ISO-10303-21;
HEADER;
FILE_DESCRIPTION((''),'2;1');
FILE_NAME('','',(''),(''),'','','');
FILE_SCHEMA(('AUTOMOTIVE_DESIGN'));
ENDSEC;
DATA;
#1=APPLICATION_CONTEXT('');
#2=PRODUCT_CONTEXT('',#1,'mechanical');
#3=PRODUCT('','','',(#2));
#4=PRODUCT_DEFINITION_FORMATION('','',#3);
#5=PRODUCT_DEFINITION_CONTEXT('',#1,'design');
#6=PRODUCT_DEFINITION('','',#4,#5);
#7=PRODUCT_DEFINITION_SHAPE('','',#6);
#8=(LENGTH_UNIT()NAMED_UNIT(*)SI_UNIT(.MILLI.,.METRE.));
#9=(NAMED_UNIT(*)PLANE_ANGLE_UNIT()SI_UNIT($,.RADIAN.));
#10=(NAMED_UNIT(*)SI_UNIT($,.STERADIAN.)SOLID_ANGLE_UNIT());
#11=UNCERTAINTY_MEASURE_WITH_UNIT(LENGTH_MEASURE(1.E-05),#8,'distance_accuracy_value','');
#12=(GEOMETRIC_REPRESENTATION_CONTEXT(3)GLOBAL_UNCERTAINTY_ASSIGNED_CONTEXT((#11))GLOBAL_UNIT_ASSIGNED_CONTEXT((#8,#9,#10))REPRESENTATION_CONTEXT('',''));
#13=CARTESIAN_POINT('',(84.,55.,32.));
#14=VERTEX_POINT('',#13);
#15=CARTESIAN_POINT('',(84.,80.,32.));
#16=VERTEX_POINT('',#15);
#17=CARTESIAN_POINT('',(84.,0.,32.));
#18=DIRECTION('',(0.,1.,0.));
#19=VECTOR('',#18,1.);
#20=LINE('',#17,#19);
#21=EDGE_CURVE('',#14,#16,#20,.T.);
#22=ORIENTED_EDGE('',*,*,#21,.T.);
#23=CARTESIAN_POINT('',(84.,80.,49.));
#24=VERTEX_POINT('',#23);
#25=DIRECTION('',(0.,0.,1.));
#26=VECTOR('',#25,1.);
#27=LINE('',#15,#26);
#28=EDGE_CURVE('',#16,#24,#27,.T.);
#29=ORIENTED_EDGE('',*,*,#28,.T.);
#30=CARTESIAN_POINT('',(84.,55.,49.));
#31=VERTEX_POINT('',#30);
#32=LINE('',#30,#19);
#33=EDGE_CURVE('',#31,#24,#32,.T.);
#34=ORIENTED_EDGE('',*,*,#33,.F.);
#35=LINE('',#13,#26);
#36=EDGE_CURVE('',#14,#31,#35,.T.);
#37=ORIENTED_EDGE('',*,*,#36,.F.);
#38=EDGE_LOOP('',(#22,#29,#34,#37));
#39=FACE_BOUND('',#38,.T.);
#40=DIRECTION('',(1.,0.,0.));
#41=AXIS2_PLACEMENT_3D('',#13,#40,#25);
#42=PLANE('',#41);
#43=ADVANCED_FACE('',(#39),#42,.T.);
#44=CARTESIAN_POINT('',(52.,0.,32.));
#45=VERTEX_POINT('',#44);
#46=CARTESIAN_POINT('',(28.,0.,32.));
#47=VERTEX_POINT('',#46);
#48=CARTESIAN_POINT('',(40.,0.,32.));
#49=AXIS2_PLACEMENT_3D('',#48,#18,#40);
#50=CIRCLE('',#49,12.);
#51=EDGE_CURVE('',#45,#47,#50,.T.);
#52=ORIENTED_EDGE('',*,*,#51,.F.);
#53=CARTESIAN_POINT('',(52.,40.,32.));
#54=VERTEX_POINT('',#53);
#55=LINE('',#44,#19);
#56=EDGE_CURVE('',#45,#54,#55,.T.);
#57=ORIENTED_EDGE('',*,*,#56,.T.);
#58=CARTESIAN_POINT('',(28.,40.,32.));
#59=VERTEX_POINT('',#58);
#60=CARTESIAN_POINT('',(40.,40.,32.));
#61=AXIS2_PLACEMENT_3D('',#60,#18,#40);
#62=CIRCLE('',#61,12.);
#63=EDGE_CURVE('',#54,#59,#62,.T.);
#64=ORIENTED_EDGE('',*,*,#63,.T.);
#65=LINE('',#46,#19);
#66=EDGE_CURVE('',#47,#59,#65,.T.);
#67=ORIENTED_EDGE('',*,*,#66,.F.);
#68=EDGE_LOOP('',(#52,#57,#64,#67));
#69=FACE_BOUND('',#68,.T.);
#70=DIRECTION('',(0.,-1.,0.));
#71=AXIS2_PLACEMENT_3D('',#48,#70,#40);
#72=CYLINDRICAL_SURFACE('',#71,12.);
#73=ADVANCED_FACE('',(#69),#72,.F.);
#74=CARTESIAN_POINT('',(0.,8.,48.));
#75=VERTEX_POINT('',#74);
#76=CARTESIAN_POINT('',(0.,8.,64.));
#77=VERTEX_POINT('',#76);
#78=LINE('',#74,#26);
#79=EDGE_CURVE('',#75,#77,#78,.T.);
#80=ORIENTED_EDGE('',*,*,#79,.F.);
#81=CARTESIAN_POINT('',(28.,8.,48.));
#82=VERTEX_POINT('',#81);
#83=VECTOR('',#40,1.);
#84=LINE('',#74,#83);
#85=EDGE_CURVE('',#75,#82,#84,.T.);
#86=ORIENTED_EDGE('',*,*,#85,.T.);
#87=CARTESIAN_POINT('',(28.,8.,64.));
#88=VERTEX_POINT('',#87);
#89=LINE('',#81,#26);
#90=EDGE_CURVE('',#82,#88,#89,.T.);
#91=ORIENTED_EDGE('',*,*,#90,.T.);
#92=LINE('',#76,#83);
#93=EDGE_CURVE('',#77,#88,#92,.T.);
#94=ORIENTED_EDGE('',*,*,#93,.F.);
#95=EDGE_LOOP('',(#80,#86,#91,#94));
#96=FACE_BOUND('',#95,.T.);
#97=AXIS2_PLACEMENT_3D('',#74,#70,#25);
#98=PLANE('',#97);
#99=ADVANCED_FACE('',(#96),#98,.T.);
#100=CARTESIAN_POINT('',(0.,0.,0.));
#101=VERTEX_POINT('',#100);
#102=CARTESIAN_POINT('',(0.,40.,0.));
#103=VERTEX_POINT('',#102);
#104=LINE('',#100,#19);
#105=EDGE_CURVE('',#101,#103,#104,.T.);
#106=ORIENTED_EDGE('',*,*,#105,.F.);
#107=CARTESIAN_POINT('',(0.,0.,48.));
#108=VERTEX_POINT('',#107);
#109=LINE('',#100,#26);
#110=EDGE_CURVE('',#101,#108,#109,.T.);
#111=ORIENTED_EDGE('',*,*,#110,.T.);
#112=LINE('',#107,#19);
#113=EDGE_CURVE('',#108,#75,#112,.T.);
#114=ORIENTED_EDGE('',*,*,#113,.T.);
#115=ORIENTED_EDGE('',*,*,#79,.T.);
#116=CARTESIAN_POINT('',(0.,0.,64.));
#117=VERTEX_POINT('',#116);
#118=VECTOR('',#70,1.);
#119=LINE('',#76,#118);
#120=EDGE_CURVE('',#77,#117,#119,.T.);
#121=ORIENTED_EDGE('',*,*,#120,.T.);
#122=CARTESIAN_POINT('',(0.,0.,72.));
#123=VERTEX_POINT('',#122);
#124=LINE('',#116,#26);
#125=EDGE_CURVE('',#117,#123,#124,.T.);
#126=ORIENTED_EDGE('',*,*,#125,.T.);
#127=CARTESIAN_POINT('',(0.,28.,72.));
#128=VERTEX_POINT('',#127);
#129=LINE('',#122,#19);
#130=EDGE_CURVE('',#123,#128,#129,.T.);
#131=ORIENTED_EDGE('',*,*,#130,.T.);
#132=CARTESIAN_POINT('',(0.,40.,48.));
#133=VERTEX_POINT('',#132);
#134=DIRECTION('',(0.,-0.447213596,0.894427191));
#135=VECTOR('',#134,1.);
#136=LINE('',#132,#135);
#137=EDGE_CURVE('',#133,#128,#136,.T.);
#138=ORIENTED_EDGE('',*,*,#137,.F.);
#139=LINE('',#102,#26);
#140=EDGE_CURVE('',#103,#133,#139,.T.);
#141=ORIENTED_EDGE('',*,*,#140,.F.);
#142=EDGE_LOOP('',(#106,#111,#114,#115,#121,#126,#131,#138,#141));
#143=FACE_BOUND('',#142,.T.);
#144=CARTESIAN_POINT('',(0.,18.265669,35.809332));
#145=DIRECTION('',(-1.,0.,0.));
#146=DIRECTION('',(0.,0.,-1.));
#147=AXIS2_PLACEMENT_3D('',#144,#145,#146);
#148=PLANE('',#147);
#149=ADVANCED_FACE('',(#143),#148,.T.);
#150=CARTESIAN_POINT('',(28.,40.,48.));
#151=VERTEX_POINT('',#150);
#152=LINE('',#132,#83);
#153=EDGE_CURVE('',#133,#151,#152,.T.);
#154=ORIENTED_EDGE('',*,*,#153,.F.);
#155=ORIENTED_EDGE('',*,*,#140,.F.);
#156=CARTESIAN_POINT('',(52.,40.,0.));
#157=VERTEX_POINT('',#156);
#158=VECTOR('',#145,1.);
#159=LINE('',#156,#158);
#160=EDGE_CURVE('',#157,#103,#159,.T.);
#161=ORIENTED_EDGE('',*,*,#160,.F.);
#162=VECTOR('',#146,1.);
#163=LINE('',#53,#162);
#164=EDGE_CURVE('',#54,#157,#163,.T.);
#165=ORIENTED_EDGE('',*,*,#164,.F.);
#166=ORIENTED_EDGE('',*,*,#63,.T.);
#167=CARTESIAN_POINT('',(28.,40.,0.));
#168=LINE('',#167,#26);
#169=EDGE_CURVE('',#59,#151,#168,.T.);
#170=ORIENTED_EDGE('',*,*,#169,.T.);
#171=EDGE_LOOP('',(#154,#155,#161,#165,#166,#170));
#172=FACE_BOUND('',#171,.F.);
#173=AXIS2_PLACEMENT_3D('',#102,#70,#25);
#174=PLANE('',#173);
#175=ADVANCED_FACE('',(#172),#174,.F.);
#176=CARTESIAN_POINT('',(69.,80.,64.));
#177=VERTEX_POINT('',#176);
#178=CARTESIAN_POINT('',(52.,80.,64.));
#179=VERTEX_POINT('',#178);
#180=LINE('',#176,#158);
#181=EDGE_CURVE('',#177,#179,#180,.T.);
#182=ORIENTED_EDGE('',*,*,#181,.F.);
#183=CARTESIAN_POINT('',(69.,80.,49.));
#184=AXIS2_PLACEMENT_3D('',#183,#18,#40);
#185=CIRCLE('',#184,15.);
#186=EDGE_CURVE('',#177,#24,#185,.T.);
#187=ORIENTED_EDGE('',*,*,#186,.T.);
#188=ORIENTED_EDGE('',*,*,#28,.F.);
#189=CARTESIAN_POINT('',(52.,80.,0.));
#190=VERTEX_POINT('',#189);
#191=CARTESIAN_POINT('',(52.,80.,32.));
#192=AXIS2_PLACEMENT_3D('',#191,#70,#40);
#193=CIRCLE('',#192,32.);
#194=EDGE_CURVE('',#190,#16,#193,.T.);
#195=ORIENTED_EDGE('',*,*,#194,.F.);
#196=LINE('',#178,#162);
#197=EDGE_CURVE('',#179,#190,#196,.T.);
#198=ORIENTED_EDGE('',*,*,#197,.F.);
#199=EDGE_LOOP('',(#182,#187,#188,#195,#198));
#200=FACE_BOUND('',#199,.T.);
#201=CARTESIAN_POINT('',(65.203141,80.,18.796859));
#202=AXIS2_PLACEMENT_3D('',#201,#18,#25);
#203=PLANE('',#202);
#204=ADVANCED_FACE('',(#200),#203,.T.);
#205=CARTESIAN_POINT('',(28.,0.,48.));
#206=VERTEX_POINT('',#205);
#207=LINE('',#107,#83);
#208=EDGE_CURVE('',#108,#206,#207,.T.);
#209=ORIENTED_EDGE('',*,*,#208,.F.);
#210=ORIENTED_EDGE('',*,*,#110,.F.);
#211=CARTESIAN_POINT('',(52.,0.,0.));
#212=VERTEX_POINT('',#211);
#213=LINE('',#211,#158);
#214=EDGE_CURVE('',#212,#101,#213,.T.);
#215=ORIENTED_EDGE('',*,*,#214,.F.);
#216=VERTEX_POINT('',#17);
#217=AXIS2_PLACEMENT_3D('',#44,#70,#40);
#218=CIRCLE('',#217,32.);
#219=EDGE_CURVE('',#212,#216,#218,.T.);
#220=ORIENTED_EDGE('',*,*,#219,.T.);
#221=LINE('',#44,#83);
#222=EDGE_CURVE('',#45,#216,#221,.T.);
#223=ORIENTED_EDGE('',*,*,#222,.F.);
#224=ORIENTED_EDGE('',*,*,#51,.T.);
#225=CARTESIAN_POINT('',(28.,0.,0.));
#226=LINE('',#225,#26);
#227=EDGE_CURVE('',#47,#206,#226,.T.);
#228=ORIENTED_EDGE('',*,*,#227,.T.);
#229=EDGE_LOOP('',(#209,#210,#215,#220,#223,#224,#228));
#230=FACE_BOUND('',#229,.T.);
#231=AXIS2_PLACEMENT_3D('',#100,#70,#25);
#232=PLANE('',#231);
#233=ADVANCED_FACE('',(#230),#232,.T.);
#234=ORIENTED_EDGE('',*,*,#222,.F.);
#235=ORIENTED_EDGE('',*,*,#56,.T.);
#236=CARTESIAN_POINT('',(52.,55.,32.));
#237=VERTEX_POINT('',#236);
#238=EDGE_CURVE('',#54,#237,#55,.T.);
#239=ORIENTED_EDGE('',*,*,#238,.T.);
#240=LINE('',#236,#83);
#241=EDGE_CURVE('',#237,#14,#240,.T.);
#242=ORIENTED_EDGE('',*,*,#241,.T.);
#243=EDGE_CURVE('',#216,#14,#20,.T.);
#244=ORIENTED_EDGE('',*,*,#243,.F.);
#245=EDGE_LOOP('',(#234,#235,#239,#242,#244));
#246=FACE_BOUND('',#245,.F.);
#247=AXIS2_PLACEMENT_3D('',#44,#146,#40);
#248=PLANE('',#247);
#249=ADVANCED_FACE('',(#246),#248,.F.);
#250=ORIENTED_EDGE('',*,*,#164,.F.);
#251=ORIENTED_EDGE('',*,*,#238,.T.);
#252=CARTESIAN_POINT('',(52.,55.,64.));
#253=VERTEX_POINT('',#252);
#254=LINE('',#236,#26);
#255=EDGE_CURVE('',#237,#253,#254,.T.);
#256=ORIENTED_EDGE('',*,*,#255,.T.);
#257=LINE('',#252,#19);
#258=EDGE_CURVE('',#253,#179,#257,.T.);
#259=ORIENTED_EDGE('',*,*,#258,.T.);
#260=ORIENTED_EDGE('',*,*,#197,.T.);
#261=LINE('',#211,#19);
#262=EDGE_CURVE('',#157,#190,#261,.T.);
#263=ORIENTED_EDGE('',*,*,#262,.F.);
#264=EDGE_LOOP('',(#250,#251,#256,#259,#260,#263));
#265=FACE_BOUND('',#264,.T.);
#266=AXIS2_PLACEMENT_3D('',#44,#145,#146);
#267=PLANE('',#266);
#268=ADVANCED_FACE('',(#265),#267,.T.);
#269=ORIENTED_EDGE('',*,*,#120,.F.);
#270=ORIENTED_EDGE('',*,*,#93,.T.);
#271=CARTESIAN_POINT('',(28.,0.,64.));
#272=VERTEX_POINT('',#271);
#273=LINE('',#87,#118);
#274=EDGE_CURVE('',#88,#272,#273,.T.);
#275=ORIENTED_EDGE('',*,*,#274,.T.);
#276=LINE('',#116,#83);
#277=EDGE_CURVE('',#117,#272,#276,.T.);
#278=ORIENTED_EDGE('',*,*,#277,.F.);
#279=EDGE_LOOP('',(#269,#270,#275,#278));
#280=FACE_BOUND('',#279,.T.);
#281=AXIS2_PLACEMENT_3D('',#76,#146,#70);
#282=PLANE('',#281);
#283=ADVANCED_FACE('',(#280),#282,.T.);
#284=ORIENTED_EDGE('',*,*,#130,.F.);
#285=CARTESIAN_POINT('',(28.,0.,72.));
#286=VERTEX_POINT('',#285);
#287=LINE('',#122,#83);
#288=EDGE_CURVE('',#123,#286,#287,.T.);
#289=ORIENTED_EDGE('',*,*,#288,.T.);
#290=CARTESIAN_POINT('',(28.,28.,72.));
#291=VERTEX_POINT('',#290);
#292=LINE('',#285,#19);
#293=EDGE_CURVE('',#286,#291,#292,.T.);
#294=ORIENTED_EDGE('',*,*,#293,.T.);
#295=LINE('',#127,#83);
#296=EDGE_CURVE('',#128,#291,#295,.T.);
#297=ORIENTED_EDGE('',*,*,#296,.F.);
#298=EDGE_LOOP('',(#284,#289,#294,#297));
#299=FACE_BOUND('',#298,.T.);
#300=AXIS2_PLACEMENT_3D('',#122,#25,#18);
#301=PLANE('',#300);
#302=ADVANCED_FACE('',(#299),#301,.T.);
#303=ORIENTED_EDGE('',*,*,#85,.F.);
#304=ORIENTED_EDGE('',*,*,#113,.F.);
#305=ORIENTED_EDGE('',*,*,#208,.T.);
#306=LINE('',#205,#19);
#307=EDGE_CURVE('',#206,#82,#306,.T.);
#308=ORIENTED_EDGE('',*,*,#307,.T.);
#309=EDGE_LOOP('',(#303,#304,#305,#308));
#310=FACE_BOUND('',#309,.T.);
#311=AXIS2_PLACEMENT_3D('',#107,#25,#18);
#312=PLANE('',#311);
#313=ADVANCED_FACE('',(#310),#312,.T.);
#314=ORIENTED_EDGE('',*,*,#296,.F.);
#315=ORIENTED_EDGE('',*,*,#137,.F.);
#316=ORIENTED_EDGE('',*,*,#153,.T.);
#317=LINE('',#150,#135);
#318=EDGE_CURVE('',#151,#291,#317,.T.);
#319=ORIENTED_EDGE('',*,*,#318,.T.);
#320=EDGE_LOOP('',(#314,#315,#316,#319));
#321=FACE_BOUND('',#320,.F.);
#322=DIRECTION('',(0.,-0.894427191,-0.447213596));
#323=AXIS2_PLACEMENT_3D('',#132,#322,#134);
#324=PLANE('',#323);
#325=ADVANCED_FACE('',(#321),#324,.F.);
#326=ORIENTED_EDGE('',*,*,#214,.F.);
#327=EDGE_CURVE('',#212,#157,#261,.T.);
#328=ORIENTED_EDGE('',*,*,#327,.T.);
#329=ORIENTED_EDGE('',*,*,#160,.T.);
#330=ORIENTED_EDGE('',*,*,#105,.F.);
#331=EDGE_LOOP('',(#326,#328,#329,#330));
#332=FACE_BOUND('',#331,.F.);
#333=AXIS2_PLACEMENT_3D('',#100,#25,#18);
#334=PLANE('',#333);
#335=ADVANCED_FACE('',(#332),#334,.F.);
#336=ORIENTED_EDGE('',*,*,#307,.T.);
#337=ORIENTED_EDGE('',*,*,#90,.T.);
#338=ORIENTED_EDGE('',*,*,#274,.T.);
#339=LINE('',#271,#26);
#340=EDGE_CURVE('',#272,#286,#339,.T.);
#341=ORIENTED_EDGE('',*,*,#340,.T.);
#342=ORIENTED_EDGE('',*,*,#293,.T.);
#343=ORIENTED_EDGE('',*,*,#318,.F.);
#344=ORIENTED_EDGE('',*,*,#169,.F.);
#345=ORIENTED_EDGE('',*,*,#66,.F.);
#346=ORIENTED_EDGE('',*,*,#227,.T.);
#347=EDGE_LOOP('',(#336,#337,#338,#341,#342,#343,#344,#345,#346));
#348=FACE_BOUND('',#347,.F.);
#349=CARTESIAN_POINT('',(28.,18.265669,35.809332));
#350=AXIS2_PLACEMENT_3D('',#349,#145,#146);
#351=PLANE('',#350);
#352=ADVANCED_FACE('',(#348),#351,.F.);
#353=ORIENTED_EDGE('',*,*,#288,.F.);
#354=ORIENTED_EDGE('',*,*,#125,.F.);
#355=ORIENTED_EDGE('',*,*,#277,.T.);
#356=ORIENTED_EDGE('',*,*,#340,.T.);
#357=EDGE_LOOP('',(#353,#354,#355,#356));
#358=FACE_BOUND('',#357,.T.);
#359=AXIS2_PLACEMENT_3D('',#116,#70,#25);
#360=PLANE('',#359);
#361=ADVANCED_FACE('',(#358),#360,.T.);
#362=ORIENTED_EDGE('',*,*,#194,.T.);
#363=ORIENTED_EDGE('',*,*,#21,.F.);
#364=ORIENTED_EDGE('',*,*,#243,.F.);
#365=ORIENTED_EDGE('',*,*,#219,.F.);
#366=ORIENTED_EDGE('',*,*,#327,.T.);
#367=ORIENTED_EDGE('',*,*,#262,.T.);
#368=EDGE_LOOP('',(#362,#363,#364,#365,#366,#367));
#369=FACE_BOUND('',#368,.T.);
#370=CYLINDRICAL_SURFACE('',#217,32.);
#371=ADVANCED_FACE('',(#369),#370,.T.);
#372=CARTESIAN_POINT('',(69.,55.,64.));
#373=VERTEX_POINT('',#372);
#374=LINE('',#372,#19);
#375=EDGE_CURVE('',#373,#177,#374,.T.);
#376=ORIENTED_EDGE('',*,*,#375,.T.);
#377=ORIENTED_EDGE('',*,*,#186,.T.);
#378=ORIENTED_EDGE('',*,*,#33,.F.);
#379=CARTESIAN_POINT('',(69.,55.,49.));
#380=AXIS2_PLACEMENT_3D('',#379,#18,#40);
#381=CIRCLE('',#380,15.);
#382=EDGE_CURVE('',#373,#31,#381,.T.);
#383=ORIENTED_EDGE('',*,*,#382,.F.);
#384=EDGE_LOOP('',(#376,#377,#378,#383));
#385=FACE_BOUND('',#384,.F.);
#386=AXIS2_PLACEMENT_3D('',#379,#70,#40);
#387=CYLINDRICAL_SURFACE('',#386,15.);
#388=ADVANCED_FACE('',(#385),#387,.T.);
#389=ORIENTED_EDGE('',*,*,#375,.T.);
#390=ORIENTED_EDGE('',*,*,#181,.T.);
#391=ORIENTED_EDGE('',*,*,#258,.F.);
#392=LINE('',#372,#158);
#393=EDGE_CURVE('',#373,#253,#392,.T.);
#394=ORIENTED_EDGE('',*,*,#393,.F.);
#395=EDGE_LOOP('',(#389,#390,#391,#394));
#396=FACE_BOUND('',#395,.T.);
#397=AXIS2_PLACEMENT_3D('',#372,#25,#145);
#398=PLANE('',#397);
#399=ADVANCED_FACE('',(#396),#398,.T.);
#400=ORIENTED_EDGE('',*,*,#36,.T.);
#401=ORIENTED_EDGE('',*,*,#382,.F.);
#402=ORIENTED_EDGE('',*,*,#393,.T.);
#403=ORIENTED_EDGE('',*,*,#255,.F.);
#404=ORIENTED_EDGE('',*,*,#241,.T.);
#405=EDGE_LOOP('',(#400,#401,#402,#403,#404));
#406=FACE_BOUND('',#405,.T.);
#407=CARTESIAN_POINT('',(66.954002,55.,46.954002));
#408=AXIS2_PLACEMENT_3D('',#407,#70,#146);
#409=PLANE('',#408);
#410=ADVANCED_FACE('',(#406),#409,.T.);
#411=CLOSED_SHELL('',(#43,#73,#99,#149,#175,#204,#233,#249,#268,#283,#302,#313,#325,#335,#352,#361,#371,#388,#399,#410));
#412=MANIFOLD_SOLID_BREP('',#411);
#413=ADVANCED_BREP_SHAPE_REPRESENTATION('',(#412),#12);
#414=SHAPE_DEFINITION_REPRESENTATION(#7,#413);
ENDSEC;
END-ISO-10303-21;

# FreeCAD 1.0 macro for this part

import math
import FreeCAD as App
import Part
import Sketcher
from FreeCAD import Vector
Q = App.Units.Quantity

doc = App.newDocument("Part")
params = doc.addObject("Spreadsheet::Sheet", "Params")
for row, (alias, value) in enumerate([
    ("sketch1_width", "8 mm"),
    ("sketch1_width2", "40 mm"),
    ("sketch1_width3", "28 mm"),
    ("sketch1_height", "16 mm"),
    ("sketch1_height2", "48 mm"),
    ("pad1_length", "28 mm"),
    ("sketch2_radius", "12 mm"),
    ("sketch2_height", "32 mm"),
    ("pad2_length", "40 mm"),
    ("sketch3_radius", "32 mm"),
    ("pad3_length", "80 mm"),
    ("sketch4_radius", "15 mm"),
    ("sketch4_width", "17 mm"),
    ("pad4_length", "25 mm"),
], start=1):
    params.set(f"A{row}", alias)
    params.set(f"B{row}", "=" + value)
    params.setAlias(f"B{row}", alias)

body = doc.addObject("PartDesign::Body", "Body")

sketch1 = doc.addObject("Sketcher::SketchObject", "Sketch")
body.addObject(sketch1)
sketch1.AttachmentSupport = (doc.YZ_Plane, [""])
sketch1.MapMode = "FlatFace"
sketch1.addGeometry([
    Part.LineSegment(Vector(0, 64, 0), Vector(8, 64, 0)),
    Part.LineSegment(Vector(8, 64, 0), Vector(8, 48, 0)),
    Part.LineSegment(Vector(8, 48, 0), Vector(0, 48, 0)),
    Part.LineSegment(Vector(0, 48, 0), Vector(0, 0, 0)),
    Part.LineSegment(Vector(0, 0, 0), Vector(40, 0, 0)),
    Part.LineSegment(Vector(40, 0, 0), Vector(40, 48, 0)),
    Part.LineSegment(Vector(40, 48, 0), Vector(28, 72, 0)),
    Part.LineSegment(Vector(28, 72, 0), Vector(0, 72, 0)),
    Part.LineSegment(Vector(0, 72, 0), Vector(0, 64, 0)),
], False)
sketch1.addConstraint([
    Sketcher.Constraint("Coincident", 0, 2, 1, 1),
    Sketcher.Constraint("Coincident", 1, 2, 2, 1),
    Sketcher.Constraint("Coincident", 2, 2, 3, 1),
    Sketcher.Constraint("Coincident", 3, 2, 4, 1),
    Sketcher.Constraint("Coincident", 4, 2, 5, 1),
    Sketcher.Constraint("Coincident", 5, 2, 6, 1),
    Sketcher.Constraint("Coincident", 6, 2, 7, 1),
    Sketcher.Constraint("Coincident", 7, 2, 8, 1),
    Sketcher.Constraint("Coincident", 8, 2, 0, 1),
    Sketcher.Constraint("Horizontal", 0),
    Sketcher.Constraint("Vertical", 1),
    Sketcher.Constraint("Horizontal", 2),
    Sketcher.Constraint("Vertical", 3),
    Sketcher.Constraint("Horizontal", 4),
    Sketcher.Constraint("Vertical", 5),
    Sketcher.Constraint("Horizontal", 7),
    Sketcher.Constraint("Vertical", 8),
    Sketcher.Constraint("Coincident", 3, 2, -1, 1),
    Sketcher.Constraint("PointOnObject", 7, 2, -2),
    Sketcher.Constraint("Horizontal", 2, 2, 5, 2),
    Sketcher.Constraint("Equal", 2, 8),
    Sketcher.Constraint("DistanceX", 0, 1, 0, 2, Q("8 mm")),
    Sketcher.Constraint("DistanceX", 4, 1, 4, 2, Q("40 mm")),
    Sketcher.Constraint("DistanceX", 7, 2, 7, 1, Q("28 mm")),
    Sketcher.Constraint("DistanceY", 1, 2, 1, 1, Q("16 mm")),
    Sketcher.Constraint("DistanceY", 3, 2, 3, 1, Q("48 mm")),
])
sketch1.setExpression("Constraints[21]", "Params.sketch1_width")
sketch1.setExpression("Constraints[22]", "Params.sketch1_width2")
sketch1.setExpression("Constraints[23]", "Params.sketch1_width3")
sketch1.setExpression("Constraints[24]", "Params.sketch1_height")
sketch1.setExpression("Constraints[25]", "Params.sketch1_height2")
pad1 = doc.addObject("PartDesign::Pad", "Pad")
body.addObject(pad1)
pad1.Profile = sketch1
pad1.setExpression("Length", "Params.pad1_length")

sketch2 = doc.addObject("Sketcher::SketchObject", "Sketch001")
body.addObject(sketch2)
sketch2.AttachmentSupport = (doc.XZ_Plane, [""])
sketch2.MapMode = "FlatFace"
sketch2.addGeometry([
    Part.LineSegment(Vector(28, 32, 0), Vector(28, 0, 0)),
    Part.LineSegment(Vector(28, 0, 0), Vector(52, 0, 0)),
    Part.LineSegment(Vector(52, 0, 0), Vector(52, 32, 0)),
    Part.ArcOfCircle(Part.Circle(Vector(40, 32, 0), Vector(0, 0, 1), 12), math.radians(180), math.radians(360)),
], False)
sketch2.addConstraint([
    Sketcher.Constraint("Coincident", 0, 2, 1, 1),
    Sketcher.Constraint("Coincident", 1, 2, 2, 1),
    Sketcher.Constraint("Tangent", 2, 2, 3, 2),
    Sketcher.Constraint("Tangent", 3, 1, 0, 1),
    Sketcher.Constraint("Vertical", 0),
    Sketcher.Constraint("Horizontal", 1),
    Sketcher.Constraint("Vertical", 2),
    Sketcher.Constraint("PointOnObject", 0, 2, -1),
    Sketcher.Constraint("Radius", 3, Q("12 mm")),
    Sketcher.Constraint("DistanceY", 0, 2, 0, 1, Q("32 mm")),
    Sketcher.Constraint("DistanceX", -1, 1, 3, 3, Q("40 mm")),
])
sketch2.setExpression("Constraints[8]", "Params.sketch2_radius")
sketch2.setExpression("Constraints[9]", "Params.sketch2_height")
pad2 = doc.addObject("PartDesign::Pad", "Pad001")
body.addObject(pad2)
pad2.Profile = sketch2
pad2.setExpression("Length", "Params.pad2_length")
pad2.Reversed = True

sketch3 = doc.addObject("Sketcher::SketchObject", "Sketch002")
body.addObject(sketch3)
sketch3.AttachmentSupport = (doc.XZ_Plane, [""])
sketch3.MapMode = "FlatFace"
sketch3.addGeometry([
    Part.LineSegment(Vector(84, 32, 0), Vector(52, 32, 0)),
    Part.LineSegment(Vector(52, 32, 0), Vector(52, 0, 0)),
    Part.ArcOfCircle(Part.Circle(Vector(52, 32, 0), Vector(0, 0, 1), 32), math.radians(-90), math.radians(0)),
], False)
sketch3.addConstraint([
    Sketcher.Constraint("Coincident", 0, 2, 1, 1),
    Sketcher.Constraint("Coincident", 1, 2, 2, 1),
    Sketcher.Constraint("Coincident", 2, 2, 0, 1),
    Sketcher.Constraint("Horizontal", 0),
    Sketcher.Constraint("Vertical", 1),
    Sketcher.Constraint("Coincident", 0, 2, 2, 3),
    Sketcher.Constraint("PointOnObject", 1, 2, -1),
    Sketcher.Constraint("Radius", 2, Q("32 mm")),
    Sketcher.Constraint("DistanceX", -1, 1, 2, 3, Q("52 mm")),
])
sketch3.setExpression("Constraints[7]", "Params.sketch3_radius")
pad3 = doc.addObject("PartDesign::Pad", "Pad002")
body.addObject(pad3)
pad3.Profile = sketch3
pad3.setExpression("Length", "Params.pad3_length")
pad3.Reversed = True

sketch4 = doc.addObject("Sketcher::SketchObject", "Sketch003")
body.addObject(sketch4)
sketch4.AttachmentSupport = (doc.XZ_Plane, [""])
sketch4.MapMode = "FlatFace"
sketch4.AttachmentOffset = App.Placement(Vector(0, 0, -55), App.Rotation())
sketch4.addGeometry([
    Part.ArcOfCircle(Part.Circle(Vector(69, 49, 0), Vector(0, 0, 1), 15), math.radians(0), math.radians(90)),
    Part.LineSegment(Vector(69, 64, 0), Vector(52, 64, 0)),
    Part.LineSegment(Vector(52, 64, 0), Vector(52, 32, 0)),
    Part.LineSegment(Vector(52, 32, 0), Vector(84, 32, 0)),
    Part.LineSegment(Vector(84, 32, 0), Vector(84, 49, 0)),
], False)
sketch4.addConstraint([
    Sketcher.Constraint("Tangent", 0, 2, 1, 1),
    Sketcher.Constraint("Coincident", 1, 2, 2, 1),
    Sketcher.Constraint("Coincident", 2, 2, 3, 1),
    Sketcher.Constraint("Coincident", 3, 2, 4, 1),
    Sketcher.Constraint("Tangent", 4, 2, 0, 1),
    Sketcher.Constraint("Horizontal", 1),
    Sketcher.Constraint("Vertical", 2),
    Sketcher.Constraint("Horizontal", 3),
    Sketcher.Constraint("Vertical", 4),
    Sketcher.Constraint("Equal", 3, 2),
    Sketcher.Constraint("Radius", 0, Q("15 mm")),
    Sketcher.Constraint("DistanceX", 1, 2, 1, 1, Q("17 mm")),
    Sketcher.Constraint("DistanceX", -1, 1, 0, 3, Q("69 mm")),
    Sketcher.Constraint("DistanceY", -1, 1, 0, 3, Q("49 mm")),
])
sketch4.setExpression("Constraints[10]", "Params.sketch4_radius")
sketch4.setExpression("Constraints[11]", "Params.sketch4_width")
pad4 = doc.addObject("PartDesign::Pad", "Pad003")
body.addObject(pad4)
pad4.Profile = sketch4
pad4.setExpression("Length", "Params.pad4_length")
pad4.Reversed = True

doc.recompute()
